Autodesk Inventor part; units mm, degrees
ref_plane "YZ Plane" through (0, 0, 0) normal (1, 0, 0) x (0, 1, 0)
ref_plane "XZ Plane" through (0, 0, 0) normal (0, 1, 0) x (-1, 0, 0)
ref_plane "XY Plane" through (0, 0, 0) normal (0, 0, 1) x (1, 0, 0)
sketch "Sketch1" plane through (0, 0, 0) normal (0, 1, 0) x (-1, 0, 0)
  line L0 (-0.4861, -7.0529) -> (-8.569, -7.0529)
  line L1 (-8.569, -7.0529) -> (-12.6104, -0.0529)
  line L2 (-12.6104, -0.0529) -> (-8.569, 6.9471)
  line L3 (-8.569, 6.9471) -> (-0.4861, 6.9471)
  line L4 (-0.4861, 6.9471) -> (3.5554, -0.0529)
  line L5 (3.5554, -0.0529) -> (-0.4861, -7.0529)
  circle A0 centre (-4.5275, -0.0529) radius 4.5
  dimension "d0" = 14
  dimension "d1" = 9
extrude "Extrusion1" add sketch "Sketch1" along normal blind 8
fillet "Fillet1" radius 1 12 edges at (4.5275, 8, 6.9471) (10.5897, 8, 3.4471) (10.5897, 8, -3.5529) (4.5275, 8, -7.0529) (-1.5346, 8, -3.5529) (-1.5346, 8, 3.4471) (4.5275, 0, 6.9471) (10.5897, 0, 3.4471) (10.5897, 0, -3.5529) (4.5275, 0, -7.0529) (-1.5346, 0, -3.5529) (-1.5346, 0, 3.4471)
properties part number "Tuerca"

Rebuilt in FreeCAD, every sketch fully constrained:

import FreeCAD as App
import Part
import Sketcher

V = App.Vector
Q = App.Units.Quantity


def edges_at(feature, points):
    """Names of the edges that pass closest to the given points."""
    edges = feature.Shape.Edges
    near = lambda p: min(range(len(edges)), key=lambda i: edges[i].distToShape(Part.Vertex(*p))[0])
    return sorted({f"Edge{near(p) + 1}" for p in points})


def add_polygon(sketch, points):
    """Adds a closed chain of lines whose ends are joined by coincident constraints."""
    first, n = sketch.GeometryCount, len(points)
    for a, b in zip(points, points[1:] + points[:1]):
        sketch.addGeometry(Part.LineSegment(App.Vector(*a, 0), App.Vector(*b, 0)), False)
    for i in range(n):
        sketch.addConstraint(Sketcher.Constraint("Coincident", first + i, 2, first + (i + 1) % n, 1))

doc = App.newDocument("Part")
body = doc.addObject("PartDesign::Body", "Body")

# Sketch on XZ plane
sketch1 = body.newObject("Sketcher::SketchObject", "Sketch")
sketch1.AttachmentSupport = (doc.getObject("XZ_Plane"), [""])
sketch1.MapMode = "FlatFace"
add_polygon(sketch1, [(8.569, -7.0529), (0.4861, -7.0529), (-3.5554, -0.0529), (0.4861, 6.9471), (8.569, 6.9471), (12.6104, -0.0529)])  # lines 0-5
sketch1.addGeometry(Part.Circle(V(4.5275, -0.0529, 0), V(0, 0, 1), 4.5), False)  # 6
sketch1.addConstraint(Sketcher.Constraint("Horizontal", 0))
sketch1.addConstraint(Sketcher.Constraint("Horizontal", 3))
sketch1.addConstraint(Sketcher.Constraint("Parallel", 1, 4))
sketch1.addConstraint(Sketcher.Constraint("Parallel", 2, 5))
sketch1.addConstraint(Sketcher.Constraint("Horizontal", 6, 3, 1, 2))
sketch1.addConstraint(Sketcher.Constraint("Horizontal", 1, 2, 4, 2))
sketch1.addConstraint(Sketcher.Constraint("Vertical", 0, 2, 2, 2))
sketch1.addConstraint(Sketcher.Constraint("Vertical", 3, 2, 5, 2))
sketch1.addConstraint(Sketcher.Constraint("Diameter", 6, Q("9 mm")))
sketch1.addConstraint(Sketcher.Constraint("DistanceY", 0, 2, 2, 2, Q("14 mm")))
sketch1.addConstraint(Sketcher.Constraint("Angle", 1, Q("120.0003 deg")))
sketch1.addConstraint(Sketcher.Constraint("DistanceX", 0, 2, 0, 1, Q("8.083 mm")))
sketch1.addConstraint(Sketcher.Constraint("DistanceY", 6, 3, -1, 1, Q("0.053 mm")))
sketch1.addConstraint(Sketcher.Constraint("DistanceX", -1, 1, 0, 2, Q("0.486 mm")))
sketch1.addConstraint(Sketcher.Constraint("DistanceX", 1, 2, 6, 3, Q("8.083 mm")))
pad1 = body.newObject("PartDesign::Pad", "Pad")
pad1.Profile = sketch1
pad1.Length = 8
pad1.Reversed = True
doc.recompute()

fillet = body.newObject("PartDesign::Fillet", "Fillet")
fillet.Base = (pad1, edges_at(pad1, [
    (4.527, 8, 6.947),
    (10.59, 8, 3.447),
    (10.59, 8, -3.553),
    (4.527, 8, -7.053),
    (-1.535, 8, -3.553),
    (-1.535, 8, 3.447),
    (4.527, 0, 6.947),
    (10.59, 0, 3.447),
    (10.59, 0, -3.553),
    (4.527, 0, -7.053),
    (-1.535, 0, -3.553),
    (-1.535, 0, 3.447),
]))
fillet.Radius = 1

doc.recompute()
